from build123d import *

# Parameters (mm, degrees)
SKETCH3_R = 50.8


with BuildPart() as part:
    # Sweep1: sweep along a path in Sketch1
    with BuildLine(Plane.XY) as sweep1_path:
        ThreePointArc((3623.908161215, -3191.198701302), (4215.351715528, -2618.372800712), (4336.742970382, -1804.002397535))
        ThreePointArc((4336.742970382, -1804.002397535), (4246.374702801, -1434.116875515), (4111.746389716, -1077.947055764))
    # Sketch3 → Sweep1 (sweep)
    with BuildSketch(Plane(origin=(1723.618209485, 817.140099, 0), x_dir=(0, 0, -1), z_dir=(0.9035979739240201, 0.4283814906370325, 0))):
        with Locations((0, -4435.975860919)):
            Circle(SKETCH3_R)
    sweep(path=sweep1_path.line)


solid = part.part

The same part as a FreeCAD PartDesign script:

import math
import FreeCAD as App
import Part
import Sketcher
Q = App.Units.Quantity

doc = App.newDocument("Part")
body = doc.addObject("PartDesign::Body", "Body")

sketch1 = body.newObject("Sketcher::SketchObject", "Sketch")
sketch1.Placement = App.Placement(App.Vector(1723.618209, 817.140099, 0), App.Rotation(App.Vector(0, 0, -1), App.Vector(-0.428381491, 0.903597974, 0), App.Vector(0.903597974, 0.428381491, 0), "ZXY"))
sketch1.addGeometry(Part.Circle(App.Vector(0, -4436, 0), App.Vector(0, 0, 1), 51), False)
sketch1.addConstraint([
    Sketcher.Constraint("PointOnObject", 0, 3, -2),
    Sketcher.Constraint("Diameter", 0, Q("4 in")),
    Sketcher.Constraint("DistanceY", 0, 3, -1, 1, Q("4435.975863 mm")),
])

sketch2 = body.newObject("Sketcher::SketchObject", "Sketch001")
sketch2.AttachmentSupport = (doc.getObject("XY_Plane"), [""])
sketch2.MapMode = "FlatFace"
sketch2.addGeometry([
    Part.ArcOfCircle(Part.Circle(App.Vector(3074, -2032, 0), App.Vector(0, 0, 1), 1283), math.radians(-65), math.radians(10)),
    Part.ArcOfCircle(Part.Circle(App.Vector(1258, -2360, 0), App.Vector(0, 0, 1), 3129), math.radians(10.24), math.radians(24.19)),
], False)
sketch2.addConstraint([
    Sketcher.Constraint("Tangent", 0, 2, 1, 1),
    Sketcher.Constraint("Radius", 1, Q("3128.88745 mm")),
    Sketcher.Constraint("Radius", 0, Q("1282.797466 mm")),
    Sketcher.Constraint("DistanceY", 0, 1, -1, 1, Q("3191.198701 mm")),
    Sketcher.Constraint("DistanceX", -1, 1, 0, 3, Q("3074.38147 mm")),
    Sketcher.Constraint("DistanceY", 0, 3, -1, 1, Q("2032.06551 mm")),
    Sketcher.Constraint("DistanceX", -1, 1, 1, 2, Q("4111.74639 mm")),
    Sketcher.Constraint("DistanceX", -1, 1, 1, 3, Q("1257.701143 mm")),
])
doc.recompute()

additivepipe = body.newObject("PartDesign::AdditivePipe", "AdditivePipe")
additivepipe.Profile = sketch1
additivepipe.Spine = (sketch2, ["Edge1", "Edge2"])

doc.recompute()
